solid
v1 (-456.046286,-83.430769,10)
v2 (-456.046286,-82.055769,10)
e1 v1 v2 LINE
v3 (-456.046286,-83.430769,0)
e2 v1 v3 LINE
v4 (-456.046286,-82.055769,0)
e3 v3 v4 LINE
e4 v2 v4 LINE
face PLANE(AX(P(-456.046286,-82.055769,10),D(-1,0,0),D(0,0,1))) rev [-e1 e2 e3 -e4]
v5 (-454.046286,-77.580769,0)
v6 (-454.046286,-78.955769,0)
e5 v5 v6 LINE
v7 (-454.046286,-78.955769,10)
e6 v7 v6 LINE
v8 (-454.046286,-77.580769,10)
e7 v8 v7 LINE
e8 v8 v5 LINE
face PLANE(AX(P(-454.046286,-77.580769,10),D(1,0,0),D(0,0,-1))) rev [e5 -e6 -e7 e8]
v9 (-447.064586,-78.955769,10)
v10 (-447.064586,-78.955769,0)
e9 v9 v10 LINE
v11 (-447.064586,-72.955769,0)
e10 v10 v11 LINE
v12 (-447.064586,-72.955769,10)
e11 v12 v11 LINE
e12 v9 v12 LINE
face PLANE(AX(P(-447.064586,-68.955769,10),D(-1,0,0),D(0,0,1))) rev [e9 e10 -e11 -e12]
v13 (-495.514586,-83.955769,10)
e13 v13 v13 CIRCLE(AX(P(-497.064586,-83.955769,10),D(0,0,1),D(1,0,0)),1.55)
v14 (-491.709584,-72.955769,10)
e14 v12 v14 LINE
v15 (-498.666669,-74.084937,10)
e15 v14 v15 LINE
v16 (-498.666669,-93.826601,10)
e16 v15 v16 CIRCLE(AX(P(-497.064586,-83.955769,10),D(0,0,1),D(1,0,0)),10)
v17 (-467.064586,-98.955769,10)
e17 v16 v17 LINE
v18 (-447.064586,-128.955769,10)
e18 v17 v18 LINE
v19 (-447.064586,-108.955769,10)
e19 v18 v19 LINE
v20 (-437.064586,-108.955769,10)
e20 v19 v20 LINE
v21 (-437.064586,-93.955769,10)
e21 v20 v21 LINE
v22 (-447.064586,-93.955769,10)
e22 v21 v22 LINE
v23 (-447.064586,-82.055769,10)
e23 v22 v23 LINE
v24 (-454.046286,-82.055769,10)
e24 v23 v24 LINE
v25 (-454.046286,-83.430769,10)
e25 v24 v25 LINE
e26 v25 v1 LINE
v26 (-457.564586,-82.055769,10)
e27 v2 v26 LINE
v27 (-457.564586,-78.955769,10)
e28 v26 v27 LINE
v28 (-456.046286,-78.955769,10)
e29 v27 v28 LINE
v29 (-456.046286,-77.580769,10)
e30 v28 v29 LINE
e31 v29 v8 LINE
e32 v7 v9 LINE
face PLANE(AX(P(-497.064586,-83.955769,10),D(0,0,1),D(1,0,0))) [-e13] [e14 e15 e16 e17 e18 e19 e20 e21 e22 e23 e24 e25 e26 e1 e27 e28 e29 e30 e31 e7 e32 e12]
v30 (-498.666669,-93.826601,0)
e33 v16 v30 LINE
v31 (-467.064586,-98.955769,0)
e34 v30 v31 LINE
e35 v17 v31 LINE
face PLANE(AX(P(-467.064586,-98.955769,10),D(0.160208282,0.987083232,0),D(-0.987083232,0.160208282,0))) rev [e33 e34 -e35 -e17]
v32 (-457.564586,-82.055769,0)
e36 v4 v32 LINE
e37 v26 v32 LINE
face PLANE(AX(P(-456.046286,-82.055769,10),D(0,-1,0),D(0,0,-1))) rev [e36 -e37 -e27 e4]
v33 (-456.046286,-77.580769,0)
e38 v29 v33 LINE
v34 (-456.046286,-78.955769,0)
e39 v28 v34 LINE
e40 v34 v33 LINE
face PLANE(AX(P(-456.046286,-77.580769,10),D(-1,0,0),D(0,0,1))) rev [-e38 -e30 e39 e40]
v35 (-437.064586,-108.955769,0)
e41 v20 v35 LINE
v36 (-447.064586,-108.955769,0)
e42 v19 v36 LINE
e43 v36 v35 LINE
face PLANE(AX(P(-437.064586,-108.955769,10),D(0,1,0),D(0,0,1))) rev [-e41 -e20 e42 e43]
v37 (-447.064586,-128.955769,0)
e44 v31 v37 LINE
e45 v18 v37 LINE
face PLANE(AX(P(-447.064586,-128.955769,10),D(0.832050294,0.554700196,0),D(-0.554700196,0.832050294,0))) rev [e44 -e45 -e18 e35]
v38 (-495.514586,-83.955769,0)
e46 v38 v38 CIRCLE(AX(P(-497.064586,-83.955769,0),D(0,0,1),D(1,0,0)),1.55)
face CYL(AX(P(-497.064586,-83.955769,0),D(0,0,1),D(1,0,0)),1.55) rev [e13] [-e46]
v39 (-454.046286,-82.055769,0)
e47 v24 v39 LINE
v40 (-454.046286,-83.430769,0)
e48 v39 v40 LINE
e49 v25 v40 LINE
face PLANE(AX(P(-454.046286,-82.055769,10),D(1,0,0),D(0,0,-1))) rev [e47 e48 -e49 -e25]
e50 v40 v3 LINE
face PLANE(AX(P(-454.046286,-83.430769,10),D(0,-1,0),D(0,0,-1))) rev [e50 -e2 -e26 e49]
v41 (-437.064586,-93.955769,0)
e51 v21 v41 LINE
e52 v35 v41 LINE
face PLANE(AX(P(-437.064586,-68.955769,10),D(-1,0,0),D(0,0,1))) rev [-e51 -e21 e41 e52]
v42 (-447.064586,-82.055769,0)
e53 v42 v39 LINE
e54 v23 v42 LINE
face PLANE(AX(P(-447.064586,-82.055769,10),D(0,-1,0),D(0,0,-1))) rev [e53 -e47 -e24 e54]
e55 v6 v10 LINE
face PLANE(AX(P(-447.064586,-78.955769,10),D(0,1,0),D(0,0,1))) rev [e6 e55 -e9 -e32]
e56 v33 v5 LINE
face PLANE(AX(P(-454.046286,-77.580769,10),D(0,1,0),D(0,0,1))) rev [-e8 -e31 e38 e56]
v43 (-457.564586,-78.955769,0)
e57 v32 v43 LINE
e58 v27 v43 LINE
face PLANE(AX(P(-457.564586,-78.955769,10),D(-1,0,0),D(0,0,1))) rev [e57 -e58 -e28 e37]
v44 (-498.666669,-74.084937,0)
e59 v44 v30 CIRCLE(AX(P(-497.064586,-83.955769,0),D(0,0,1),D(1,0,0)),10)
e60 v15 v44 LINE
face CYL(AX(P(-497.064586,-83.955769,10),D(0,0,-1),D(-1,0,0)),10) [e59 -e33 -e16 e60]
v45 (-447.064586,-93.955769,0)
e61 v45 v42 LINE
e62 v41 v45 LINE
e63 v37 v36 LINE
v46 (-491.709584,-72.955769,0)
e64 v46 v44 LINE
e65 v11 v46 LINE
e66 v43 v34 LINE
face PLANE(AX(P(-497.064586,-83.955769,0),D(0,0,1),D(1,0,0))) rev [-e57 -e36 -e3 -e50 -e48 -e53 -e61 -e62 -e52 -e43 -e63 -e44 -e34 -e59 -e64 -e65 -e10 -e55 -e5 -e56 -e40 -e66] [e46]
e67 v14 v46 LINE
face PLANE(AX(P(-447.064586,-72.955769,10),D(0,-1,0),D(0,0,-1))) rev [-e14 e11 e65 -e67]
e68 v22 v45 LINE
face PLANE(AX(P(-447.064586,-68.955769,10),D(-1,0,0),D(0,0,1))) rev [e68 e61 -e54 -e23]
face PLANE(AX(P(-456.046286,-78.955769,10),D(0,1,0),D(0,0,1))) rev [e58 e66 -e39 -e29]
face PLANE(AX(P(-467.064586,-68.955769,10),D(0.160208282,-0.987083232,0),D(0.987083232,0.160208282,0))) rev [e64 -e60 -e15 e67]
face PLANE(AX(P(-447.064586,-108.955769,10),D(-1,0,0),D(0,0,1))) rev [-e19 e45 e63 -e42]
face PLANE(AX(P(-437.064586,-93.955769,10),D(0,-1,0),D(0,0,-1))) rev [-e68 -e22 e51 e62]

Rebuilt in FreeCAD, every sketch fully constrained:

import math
import FreeCAD as App
import Part
import Sketcher
from FreeCAD import Vector


def add_polygon(sketch, points):
    """Adds a closed chain of lines whose ends are joined by coincident constraints."""
    first, n = sketch.GeometryCount, len(points)
    for a, b in zip(points, points[1:] + points[:1]):
        sketch.addGeometry(Part.LineSegment(App.Vector(*a, 0), App.Vector(*b, 0)), False)
    for i in range(n):
        sketch.addConstraint(Sketcher.Constraint("Coincident", first + i, 2, first + (i + 1) % n, 1))

doc = App.newDocument("Part")
body = doc.addObject("PartDesign::Body", "Body")

# Sketch on XY plane
sketch1 = doc.addObject("Sketcher::SketchObject", "Sketch")
body.addObject(sketch1)
sketch1.AttachmentSupport = (doc.XY_Plane, [""])
sketch1.MapMode = "FlatFace"
sketch1.addGeometry([
    Part.LineSegment(Vector(-437.064586, -128.955769, 0), Vector(-437.064586, -68.955769, 0)),  # 0
    Part.LineSegment(Vector(-437.064586, -68.955769, 0), Vector(-467.064586, -68.955769, 0)),  # 1
    Part.LineSegment(Vector(-467.064586, -68.955769, 0), Vector(-498.666669, -74.084937, 0)),  # 2
    Part.ArcOfCircle(Part.Circle(Vector(-497.064586, -83.955769, 0), Vector(0, 0, 1), 10), math.radians(99.218986), math.radians(260.781014)),  # 3
    Part.LineSegment(Vector(-498.666669, -93.826601, 0), Vector(-467.064586, -98.955769, 0)),  # 4
    Part.LineSegment(Vector(-467.064586, -98.955769, 0), Vector(-447.064586, -128.955769, 0)),  # 5
    Part.LineSegment(Vector(-447.064586, -128.955769, 0), Vector(-437.064586, -128.955769, 0)),  # 6
], False)
sketch1.addConstraint([
    Sketcher.Constraint("Coincident", 0, 2, 1, 1),
    Sketcher.Constraint("Coincident", 1, 2, 2, 1),
    Sketcher.Constraint("Tangent", 2, 2, 3, 1),
    Sketcher.Constraint("Tangent", 3, 2, 4, 1),
    Sketcher.Constraint("Coincident", 4, 2, 5, 1),
    Sketcher.Constraint("Coincident", 5, 2, 6, 1),
    Sketcher.Constraint("Coincident", 6, 2, 0, 1),
    Sketcher.Constraint("Vertical", 0),
    Sketcher.Constraint("Horizontal", 1),
    Sketcher.Constraint("Horizontal", 6),
    Sketcher.Constraint("Vertical", 2, 2, 3, 2),
    Sketcher.Constraint("Vertical", 1, 2, 4, 2),
    Sketcher.Constraint("Radius", 3, 10.0),
    Sketcher.Constraint("DistanceX", 1, 2, 1, 1, 30.0),
    Sketcher.Constraint("DistanceX", 6, 1, 6, 2, 10.0),
    Sketcher.Constraint("DistanceY", 0, 1, 0, 2, 60.0),
    Sketcher.Constraint("DistanceX", 3, 3, 0, 2, 60.0),
    Sketcher.Constraint("DistanceY", 3, 3, 0, 2, 15.0),
    Sketcher.Constraint("DistanceY", 3, 2, -1, 1, 93.826601),
    Sketcher.Constraint("DistanceX", 2, 2, -1, 1, 498.666669),
])
pad1 = doc.addObject("PartDesign::Pad", "Pad")
body.addObject(pad1)
pad1.Profile = sketch1
pad1.Length = 10

# Sketch on XY plane
sketch2 = doc.addObject("Sketcher::SketchObject", "Sketch001")
body.addObject(sketch2)
sketch2.AttachmentSupport = (doc.XY_Plane, [""])
sketch2.MapMode = "FlatFace"
sketch2.AttachmentOffset = App.Placement(Vector(0, 0, 10), App.Rotation())
sketch2.addGeometry(Part.Circle(Vector(-497.064586, -83.955769, 0), Vector(0, 0, 1), 1.55), False)
sketch2.addConstraint([
    Sketcher.Constraint("Diameter", 0, 3.1),
    Sketcher.Constraint("DistanceY", 0, 3, -1, 1, 83.955769),
    Sketcher.Constraint("DistanceX", 0, 3, -1, 1, 497.064586),
])
pocket1 = doc.addObject("PartDesign::Pocket", "Pocket")
body.addObject(pocket1)
pocket1.Profile = sketch2
pocket1.Length = 10

# Sketch on XY plane
sketch3 = doc.addObject("Sketcher::SketchObject", "Sketch002")
body.addObject(sketch3)
sketch3.AttachmentSupport = (doc.XY_Plane, [""])
sketch3.MapMode = "FlatFace"
add_polygon(sketch3, [(-437.064586, -108.955769), (-437.064586, -128.955769), (-447.064586, -128.955769), (-447.064586, -108.955769)])  # lines 0-3
add_polygon(sketch3, [(-437.064586, -68.955769), (-437.064586, -93.955769), (-447.064586, -93.955769), (-447.064586, -68.955769)])  # lines 4-7
sketch3.addConstraint([
    Sketcher.Constraint("Vertical", 0),
    Sketcher.Constraint("Horizontal", 1),
    Sketcher.Constraint("Vertical", 2),
    Sketcher.Constraint("Horizontal", 3),
    Sketcher.Constraint("Vertical", 4),
    Sketcher.Constraint("Horizontal", 5),
    Sketcher.Constraint("Vertical", 6),
    Sketcher.Constraint("Horizontal", 7),
    Sketcher.Constraint("Vertical", 3, 2, 4, 2),
    Sketcher.Constraint("Vertical", 2, 2, 5, 2),
    Sketcher.Constraint("DistanceX", 1, 2, 1, 1, 10.0),
    Sketcher.Constraint("DistanceY", 0, 2, 0, 1, 20.0),
    Sketcher.Constraint("DistanceY", 4, 2, 4, 1, 25.0),
    Sketcher.Constraint("DistanceY", 3, 2, 4, 2, 15.0),
    Sketcher.Constraint("DistanceY", 0, 2, -1, 1, 128.955769),
    Sketcher.Constraint("DistanceX", 0, 2, -1, 1, 437.064586),
])
pocket2 = doc.addObject("PartDesign::Pocket", "Pocket001")
body.addObject(pocket2)
pocket2.Profile = sketch3
pocket2.Length = 10
pocket2.Reversed = True

# Sketch on XY plane
sketch4 = doc.addObject("Sketcher::SketchObject", "Sketch003")
body.addObject(sketch4)
sketch4.AttachmentSupport = (doc.XY_Plane, [""])
sketch4.MapMode = "FlatFace"
add_polygon(sketch4, [(-447.064586, -78.955769), (-447.064586, -82.055769), (-454.046286, -82.055769), (-454.046286, -83.430769), (-456.046286, -83.430769), (-456.046286, -82.055769), (-457.564586, -82.055769), (-457.564586, -78.955769), (-456.046286, -78.955769), (-456.046286, -77.580769), (-454.046286, -77.580769), (-454.046286, -78.955769)])  # lines 0-11
sketch4.addConstraint([
    Sketcher.Constraint("Vertical", 0),
    Sketcher.Constraint("Horizontal", 1),
    Sketcher.Constraint("Vertical", 2),
    Sketcher.Constraint("Horizontal", 3),
    Sketcher.Constraint("Vertical", 4),
    Sketcher.Constraint("Horizontal", 5),
    Sketcher.Constraint("Vertical", 6),
    Sketcher.Constraint("Horizontal", 7),
    Sketcher.Constraint("Vertical", 8),
    Sketcher.Constraint("Horizontal", 9),
    Sketcher.Constraint("Vertical", 10),
    Sketcher.Constraint("Horizontal", 11),
    Sketcher.Constraint("Horizontal", 1, 2, 4, 2),
    Sketcher.Constraint("Horizontal", 7, 2, 10, 2),
    Sketcher.Constraint("Vertical", 4, 2, 7, 2),
    Sketcher.Constraint("Vertical", 2, 2, 9, 2),
    Sketcher.Constraint("Equal", 4, 8),
    Sketcher.Constraint("DistanceX", 3, 2, 3, 1, 2.0),
    Sketcher.Constraint("DistanceY", 0, 2, 0, 1, 3.1),
    Sketcher.Constraint("DistanceX", 5, 2, 0, 2, 10.5),
    Sketcher.Constraint("DistanceY", 2, 2, 2, 1, 1.375),
    Sketcher.Constraint("DistanceX", 1, 2, 1, 1, 6.9817),
    Sketcher.Constraint("DistanceY", 0, 2, -1, 1, 82.055769),
    Sketcher.Constraint("DistanceX", 0, 2, -1, 1, 447.064586),
])
pocket3 = doc.addObject("PartDesign::Pocket", "Pocket002")
body.addObject(pocket3)
pocket3.Profile = sketch4
pocket3.Length = 10
pocket3.Reversed = True

# Sketch on XY plane
sketch5 = doc.addObject("Sketcher::SketchObject", "Sketch004")
body.addObject(sketch5)
sketch5.AttachmentSupport = (doc.XY_Plane, [""])
sketch5.MapMode = "FlatFace"
add_polygon(sketch5, [(-447.064586, -68.955769), (-447.064586, -72.955769), (-491.709584, -72.955769), (-491.709584, -68.955769)])  # lines 0-3
sketch5.addConstraint([
    Sketcher.Constraint("Vertical", 0),
    Sketcher.Constraint("Horizontal", 1),
    Sketcher.Constraint("Vertical", 2),
    Sketcher.Constraint("Horizontal", 3),
    Sketcher.Constraint("DistanceY", 0, 2, 0, 1, 4.0),
    Sketcher.Constraint("DistanceX", 1, 2, 1, 1, 44.644999),
    Sketcher.Constraint("DistanceY", 0, 2, -1, 1, 72.955769),
    Sketcher.Constraint("DistanceX", 0, 2, -1, 1, 447.064586),
])
pocket4 = doc.addObject("PartDesign::Pocket", "Pocket003")
body.addObject(pocket4)
pocket4.Profile = sketch5
pocket4.Length = 10
pocket4.Reversed = True

doc.recompute()
